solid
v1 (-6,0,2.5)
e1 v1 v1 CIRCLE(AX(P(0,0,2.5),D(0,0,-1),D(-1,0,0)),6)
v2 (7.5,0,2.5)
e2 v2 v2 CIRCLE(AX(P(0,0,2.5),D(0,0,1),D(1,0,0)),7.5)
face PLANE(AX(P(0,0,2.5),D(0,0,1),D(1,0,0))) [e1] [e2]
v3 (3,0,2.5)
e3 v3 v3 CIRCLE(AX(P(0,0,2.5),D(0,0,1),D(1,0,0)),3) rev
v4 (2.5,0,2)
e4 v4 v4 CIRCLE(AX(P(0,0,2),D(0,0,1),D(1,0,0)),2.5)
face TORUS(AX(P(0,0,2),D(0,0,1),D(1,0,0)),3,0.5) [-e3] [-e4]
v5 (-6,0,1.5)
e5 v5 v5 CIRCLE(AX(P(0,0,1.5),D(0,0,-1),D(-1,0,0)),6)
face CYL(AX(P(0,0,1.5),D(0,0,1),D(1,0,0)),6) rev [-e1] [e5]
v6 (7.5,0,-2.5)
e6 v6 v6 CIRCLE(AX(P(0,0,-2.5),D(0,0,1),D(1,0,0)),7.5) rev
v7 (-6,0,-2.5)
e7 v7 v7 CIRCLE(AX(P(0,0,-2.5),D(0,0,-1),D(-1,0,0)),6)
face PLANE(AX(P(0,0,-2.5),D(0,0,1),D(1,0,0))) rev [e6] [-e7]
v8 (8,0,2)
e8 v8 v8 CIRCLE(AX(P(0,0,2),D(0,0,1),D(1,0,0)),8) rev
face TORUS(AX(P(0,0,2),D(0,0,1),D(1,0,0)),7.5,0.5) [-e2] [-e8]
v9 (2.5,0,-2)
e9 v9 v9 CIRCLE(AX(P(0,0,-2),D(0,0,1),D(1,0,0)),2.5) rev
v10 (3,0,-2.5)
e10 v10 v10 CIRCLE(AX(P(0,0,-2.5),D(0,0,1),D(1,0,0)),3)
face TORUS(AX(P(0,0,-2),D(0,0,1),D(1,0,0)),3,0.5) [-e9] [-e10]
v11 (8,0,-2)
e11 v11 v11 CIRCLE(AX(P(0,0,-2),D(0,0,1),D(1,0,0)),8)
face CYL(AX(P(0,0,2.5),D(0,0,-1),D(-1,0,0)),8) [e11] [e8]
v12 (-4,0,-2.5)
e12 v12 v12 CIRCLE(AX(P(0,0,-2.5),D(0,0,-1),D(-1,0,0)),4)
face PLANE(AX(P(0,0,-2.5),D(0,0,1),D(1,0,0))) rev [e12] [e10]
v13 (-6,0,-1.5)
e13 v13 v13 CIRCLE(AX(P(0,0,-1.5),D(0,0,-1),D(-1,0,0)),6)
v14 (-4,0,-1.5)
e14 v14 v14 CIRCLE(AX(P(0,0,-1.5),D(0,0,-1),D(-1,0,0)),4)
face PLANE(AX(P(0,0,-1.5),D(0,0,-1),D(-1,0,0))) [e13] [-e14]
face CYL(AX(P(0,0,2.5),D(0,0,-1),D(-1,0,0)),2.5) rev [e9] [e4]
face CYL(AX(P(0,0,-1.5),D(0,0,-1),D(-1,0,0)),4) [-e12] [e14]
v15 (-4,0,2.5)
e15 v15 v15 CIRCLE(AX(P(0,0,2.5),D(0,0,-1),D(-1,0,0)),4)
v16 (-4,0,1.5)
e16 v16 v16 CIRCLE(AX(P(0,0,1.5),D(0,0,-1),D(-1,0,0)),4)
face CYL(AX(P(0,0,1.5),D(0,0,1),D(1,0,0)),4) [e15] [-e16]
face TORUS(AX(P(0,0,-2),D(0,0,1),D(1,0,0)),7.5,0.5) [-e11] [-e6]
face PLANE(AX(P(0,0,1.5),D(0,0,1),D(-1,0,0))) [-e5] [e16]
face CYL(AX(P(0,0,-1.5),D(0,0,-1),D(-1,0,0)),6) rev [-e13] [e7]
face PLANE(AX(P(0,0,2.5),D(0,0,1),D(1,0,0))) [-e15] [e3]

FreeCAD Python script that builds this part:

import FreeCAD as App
import Part
import Sketcher


def edges_at(feature, points):
    """Names of the edges that pass closest to the given points."""
    edges = feature.Shape.Edges
    near = lambda p: min(range(len(edges)), key=lambda i: edges[i].distToShape(Part.Vertex(*p))[0])
    return sorted({f"Edge{near(p) + 1}" for p in points})

doc = App.newDocument("Part")
body = doc.addObject("PartDesign::Body", "Body")

# Sketch on XY plane
sketch1 = body.newObject("Sketcher::SketchObject", "Sketch")
sketch1.AttachmentSupport = (doc.getObject("XY_Plane"), [""])
sketch1.MapMode = "FlatFace"
sketch1.addGeometry(Part.Circle(App.Vector(0, 0, 0), App.Vector(0, 0, 1), 8), False)
sketch1.addGeometry(Part.Circle(App.Vector(0, 0, 0), App.Vector(0, 0, 1), 2.5), False)
sketch1.addConstraint(Sketcher.Constraint("Coincident", 0, 3, -1, 1))
sketch1.addConstraint(Sketcher.Constraint("Coincident", 1, 3, -1, 1))
sketch1.addConstraint(Sketcher.Constraint("Diameter", 0, 16.0))
sketch1.addConstraint(Sketcher.Constraint("Diameter", 1, 5.0))
pad1 = body.newObject("PartDesign::Pad", "Pad")
pad1.Profile = sketch1
pad1.Length = 5
pad1.Midplane = True
doc.recompute()

fillet = body.newObject("PartDesign::Fillet", "Fillet")
fillet.Base = (pad1, edges_at(pad1, [
    (-8, 0, -2.5),
    (-8, 0, 2.5),
    (-2.5, 0, -2.5),
    (-2.5, 0, 2.5),
]))
fillet.Radius = 0.5

# Sketch on XY plane
sketch2 = body.newObject("Sketcher::SketchObject", "Sketch001")
sketch2.AttachmentSupport = (doc.getObject("XY_Plane"), [""])
sketch2.MapMode = "FlatFace"
sketch2.AttachmentOffset = App.Placement(App.Vector(0, 0, -2.5), App.Rotation())
sketch2.addGeometry(Part.Circle(App.Vector(0, 0, 0), App.Vector(0, 0, 1), 6), False)
sketch2.addGeometry(Part.Circle(App.Vector(0, 0, 0), App.Vector(0, 0, 1), 4), False)
sketch2.addConstraint(Sketcher.Constraint("Coincident", 0, 3, -1, 1))
sketch2.addConstraint(Sketcher.Constraint("Coincident", 1, 3, -1, 1))
sketch2.addConstraint(Sketcher.Constraint("Diameter", 0, 12.0))
sketch2.addConstraint(Sketcher.Constraint("Diameter", 1, 8.0))
pocket1 = body.newObject("PartDesign::Pocket", "Pocket")
pocket1.Profile = sketch2
pocket1.Length = 1
pocket1.Reversed = True
doc.recompute()

mirrored = body.newObject("PartDesign::Mirrored", "Mirrored")
mirrored.Originals = [pocket1]
mirrored.MirrorPlane = (doc.getObject("XY_Plane"), [""])
body.Tip = mirrored

doc.recompute()
